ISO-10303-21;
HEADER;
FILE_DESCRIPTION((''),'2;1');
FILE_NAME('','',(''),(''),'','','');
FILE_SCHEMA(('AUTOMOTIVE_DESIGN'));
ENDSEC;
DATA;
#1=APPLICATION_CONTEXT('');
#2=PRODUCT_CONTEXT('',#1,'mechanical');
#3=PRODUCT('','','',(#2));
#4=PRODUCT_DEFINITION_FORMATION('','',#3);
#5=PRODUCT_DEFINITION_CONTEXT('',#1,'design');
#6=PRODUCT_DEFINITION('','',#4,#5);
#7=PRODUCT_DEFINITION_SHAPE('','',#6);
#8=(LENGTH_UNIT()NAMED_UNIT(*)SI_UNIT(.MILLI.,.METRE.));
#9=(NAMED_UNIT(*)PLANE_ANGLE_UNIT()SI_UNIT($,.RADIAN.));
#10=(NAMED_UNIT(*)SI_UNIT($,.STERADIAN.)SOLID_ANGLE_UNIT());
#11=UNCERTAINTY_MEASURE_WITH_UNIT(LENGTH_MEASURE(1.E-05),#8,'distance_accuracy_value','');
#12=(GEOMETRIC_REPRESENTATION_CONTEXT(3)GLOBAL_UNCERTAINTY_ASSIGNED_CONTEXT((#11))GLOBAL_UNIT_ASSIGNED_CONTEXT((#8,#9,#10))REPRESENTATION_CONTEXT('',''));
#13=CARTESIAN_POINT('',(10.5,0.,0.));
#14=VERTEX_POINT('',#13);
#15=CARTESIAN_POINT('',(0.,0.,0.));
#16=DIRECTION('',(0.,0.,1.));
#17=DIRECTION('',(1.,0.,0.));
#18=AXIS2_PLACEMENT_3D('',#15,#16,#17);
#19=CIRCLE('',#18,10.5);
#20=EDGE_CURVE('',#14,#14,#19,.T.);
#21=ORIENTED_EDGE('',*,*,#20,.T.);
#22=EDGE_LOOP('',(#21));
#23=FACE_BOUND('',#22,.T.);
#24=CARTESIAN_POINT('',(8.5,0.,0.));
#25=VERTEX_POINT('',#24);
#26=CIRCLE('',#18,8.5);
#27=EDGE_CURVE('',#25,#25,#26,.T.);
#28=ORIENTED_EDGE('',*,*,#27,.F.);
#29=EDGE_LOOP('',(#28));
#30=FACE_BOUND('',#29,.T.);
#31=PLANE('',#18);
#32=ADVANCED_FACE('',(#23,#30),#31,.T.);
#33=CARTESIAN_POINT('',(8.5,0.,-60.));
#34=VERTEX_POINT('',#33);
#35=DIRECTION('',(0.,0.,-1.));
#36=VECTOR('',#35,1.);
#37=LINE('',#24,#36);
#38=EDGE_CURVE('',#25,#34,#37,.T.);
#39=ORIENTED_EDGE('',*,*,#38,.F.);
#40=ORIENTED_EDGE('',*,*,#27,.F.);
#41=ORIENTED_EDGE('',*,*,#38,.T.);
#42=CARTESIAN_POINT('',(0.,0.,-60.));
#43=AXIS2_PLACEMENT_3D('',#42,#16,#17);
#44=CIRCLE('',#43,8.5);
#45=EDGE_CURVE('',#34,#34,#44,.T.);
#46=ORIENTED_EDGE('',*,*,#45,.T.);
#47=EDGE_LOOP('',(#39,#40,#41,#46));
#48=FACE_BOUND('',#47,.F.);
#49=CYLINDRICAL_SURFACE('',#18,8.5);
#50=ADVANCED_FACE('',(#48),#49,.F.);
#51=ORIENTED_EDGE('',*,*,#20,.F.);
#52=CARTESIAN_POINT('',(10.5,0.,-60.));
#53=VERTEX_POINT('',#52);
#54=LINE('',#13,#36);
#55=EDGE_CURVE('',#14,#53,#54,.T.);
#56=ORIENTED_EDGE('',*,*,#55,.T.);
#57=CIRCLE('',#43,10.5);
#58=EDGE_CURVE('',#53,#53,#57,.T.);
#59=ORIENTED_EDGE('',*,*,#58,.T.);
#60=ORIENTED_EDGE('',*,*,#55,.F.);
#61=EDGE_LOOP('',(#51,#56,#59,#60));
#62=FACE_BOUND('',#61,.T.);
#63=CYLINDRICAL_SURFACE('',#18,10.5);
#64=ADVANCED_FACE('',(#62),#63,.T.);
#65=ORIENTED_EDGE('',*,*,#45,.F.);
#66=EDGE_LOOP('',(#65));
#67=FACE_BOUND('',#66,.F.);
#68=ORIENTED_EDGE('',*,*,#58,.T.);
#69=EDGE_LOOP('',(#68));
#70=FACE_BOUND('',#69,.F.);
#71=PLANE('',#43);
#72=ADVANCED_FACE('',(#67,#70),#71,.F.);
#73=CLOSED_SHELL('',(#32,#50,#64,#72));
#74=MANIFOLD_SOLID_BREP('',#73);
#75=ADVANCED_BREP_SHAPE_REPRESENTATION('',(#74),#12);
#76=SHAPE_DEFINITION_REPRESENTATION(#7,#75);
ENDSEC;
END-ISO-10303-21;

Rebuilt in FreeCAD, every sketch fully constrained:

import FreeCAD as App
import Part
import Sketcher
Q = App.Units.Quantity

doc = App.newDocument("Part")
body = doc.addObject("PartDesign::Body", "Body")

# Sketch on XY plane
sketch1 = body.newObject("Sketcher::SketchObject", "Sketch")
sketch1.AttachmentSupport = (doc.getObject("XY_Plane"), [""])
sketch1.MapMode = "FlatFace"
sketch1.addGeometry([
    Part.Circle(App.Vector(0, 0, 0), App.Vector(0, 0, 1), 10),
    Part.Circle(App.Vector(0, 0, 0), App.Vector(0, 0, 1), 8),
], False)
sketch1.addConstraint([
    Sketcher.Constraint("Coincident", 0, 3, -1, 1),
    Sketcher.Constraint("Coincident", 1, 3, -1, 1),
    Sketcher.Constraint("Diameter", 0, Q("21 mm")),
    Sketcher.Constraint("Diameter", 1, Q("17 mm")),
])
pad1 = body.newObject("PartDesign::Pad", "Pad")
pad1.Profile = sketch1
pad1.Length = 60
pad1.Reversed = True

doc.recompute()
